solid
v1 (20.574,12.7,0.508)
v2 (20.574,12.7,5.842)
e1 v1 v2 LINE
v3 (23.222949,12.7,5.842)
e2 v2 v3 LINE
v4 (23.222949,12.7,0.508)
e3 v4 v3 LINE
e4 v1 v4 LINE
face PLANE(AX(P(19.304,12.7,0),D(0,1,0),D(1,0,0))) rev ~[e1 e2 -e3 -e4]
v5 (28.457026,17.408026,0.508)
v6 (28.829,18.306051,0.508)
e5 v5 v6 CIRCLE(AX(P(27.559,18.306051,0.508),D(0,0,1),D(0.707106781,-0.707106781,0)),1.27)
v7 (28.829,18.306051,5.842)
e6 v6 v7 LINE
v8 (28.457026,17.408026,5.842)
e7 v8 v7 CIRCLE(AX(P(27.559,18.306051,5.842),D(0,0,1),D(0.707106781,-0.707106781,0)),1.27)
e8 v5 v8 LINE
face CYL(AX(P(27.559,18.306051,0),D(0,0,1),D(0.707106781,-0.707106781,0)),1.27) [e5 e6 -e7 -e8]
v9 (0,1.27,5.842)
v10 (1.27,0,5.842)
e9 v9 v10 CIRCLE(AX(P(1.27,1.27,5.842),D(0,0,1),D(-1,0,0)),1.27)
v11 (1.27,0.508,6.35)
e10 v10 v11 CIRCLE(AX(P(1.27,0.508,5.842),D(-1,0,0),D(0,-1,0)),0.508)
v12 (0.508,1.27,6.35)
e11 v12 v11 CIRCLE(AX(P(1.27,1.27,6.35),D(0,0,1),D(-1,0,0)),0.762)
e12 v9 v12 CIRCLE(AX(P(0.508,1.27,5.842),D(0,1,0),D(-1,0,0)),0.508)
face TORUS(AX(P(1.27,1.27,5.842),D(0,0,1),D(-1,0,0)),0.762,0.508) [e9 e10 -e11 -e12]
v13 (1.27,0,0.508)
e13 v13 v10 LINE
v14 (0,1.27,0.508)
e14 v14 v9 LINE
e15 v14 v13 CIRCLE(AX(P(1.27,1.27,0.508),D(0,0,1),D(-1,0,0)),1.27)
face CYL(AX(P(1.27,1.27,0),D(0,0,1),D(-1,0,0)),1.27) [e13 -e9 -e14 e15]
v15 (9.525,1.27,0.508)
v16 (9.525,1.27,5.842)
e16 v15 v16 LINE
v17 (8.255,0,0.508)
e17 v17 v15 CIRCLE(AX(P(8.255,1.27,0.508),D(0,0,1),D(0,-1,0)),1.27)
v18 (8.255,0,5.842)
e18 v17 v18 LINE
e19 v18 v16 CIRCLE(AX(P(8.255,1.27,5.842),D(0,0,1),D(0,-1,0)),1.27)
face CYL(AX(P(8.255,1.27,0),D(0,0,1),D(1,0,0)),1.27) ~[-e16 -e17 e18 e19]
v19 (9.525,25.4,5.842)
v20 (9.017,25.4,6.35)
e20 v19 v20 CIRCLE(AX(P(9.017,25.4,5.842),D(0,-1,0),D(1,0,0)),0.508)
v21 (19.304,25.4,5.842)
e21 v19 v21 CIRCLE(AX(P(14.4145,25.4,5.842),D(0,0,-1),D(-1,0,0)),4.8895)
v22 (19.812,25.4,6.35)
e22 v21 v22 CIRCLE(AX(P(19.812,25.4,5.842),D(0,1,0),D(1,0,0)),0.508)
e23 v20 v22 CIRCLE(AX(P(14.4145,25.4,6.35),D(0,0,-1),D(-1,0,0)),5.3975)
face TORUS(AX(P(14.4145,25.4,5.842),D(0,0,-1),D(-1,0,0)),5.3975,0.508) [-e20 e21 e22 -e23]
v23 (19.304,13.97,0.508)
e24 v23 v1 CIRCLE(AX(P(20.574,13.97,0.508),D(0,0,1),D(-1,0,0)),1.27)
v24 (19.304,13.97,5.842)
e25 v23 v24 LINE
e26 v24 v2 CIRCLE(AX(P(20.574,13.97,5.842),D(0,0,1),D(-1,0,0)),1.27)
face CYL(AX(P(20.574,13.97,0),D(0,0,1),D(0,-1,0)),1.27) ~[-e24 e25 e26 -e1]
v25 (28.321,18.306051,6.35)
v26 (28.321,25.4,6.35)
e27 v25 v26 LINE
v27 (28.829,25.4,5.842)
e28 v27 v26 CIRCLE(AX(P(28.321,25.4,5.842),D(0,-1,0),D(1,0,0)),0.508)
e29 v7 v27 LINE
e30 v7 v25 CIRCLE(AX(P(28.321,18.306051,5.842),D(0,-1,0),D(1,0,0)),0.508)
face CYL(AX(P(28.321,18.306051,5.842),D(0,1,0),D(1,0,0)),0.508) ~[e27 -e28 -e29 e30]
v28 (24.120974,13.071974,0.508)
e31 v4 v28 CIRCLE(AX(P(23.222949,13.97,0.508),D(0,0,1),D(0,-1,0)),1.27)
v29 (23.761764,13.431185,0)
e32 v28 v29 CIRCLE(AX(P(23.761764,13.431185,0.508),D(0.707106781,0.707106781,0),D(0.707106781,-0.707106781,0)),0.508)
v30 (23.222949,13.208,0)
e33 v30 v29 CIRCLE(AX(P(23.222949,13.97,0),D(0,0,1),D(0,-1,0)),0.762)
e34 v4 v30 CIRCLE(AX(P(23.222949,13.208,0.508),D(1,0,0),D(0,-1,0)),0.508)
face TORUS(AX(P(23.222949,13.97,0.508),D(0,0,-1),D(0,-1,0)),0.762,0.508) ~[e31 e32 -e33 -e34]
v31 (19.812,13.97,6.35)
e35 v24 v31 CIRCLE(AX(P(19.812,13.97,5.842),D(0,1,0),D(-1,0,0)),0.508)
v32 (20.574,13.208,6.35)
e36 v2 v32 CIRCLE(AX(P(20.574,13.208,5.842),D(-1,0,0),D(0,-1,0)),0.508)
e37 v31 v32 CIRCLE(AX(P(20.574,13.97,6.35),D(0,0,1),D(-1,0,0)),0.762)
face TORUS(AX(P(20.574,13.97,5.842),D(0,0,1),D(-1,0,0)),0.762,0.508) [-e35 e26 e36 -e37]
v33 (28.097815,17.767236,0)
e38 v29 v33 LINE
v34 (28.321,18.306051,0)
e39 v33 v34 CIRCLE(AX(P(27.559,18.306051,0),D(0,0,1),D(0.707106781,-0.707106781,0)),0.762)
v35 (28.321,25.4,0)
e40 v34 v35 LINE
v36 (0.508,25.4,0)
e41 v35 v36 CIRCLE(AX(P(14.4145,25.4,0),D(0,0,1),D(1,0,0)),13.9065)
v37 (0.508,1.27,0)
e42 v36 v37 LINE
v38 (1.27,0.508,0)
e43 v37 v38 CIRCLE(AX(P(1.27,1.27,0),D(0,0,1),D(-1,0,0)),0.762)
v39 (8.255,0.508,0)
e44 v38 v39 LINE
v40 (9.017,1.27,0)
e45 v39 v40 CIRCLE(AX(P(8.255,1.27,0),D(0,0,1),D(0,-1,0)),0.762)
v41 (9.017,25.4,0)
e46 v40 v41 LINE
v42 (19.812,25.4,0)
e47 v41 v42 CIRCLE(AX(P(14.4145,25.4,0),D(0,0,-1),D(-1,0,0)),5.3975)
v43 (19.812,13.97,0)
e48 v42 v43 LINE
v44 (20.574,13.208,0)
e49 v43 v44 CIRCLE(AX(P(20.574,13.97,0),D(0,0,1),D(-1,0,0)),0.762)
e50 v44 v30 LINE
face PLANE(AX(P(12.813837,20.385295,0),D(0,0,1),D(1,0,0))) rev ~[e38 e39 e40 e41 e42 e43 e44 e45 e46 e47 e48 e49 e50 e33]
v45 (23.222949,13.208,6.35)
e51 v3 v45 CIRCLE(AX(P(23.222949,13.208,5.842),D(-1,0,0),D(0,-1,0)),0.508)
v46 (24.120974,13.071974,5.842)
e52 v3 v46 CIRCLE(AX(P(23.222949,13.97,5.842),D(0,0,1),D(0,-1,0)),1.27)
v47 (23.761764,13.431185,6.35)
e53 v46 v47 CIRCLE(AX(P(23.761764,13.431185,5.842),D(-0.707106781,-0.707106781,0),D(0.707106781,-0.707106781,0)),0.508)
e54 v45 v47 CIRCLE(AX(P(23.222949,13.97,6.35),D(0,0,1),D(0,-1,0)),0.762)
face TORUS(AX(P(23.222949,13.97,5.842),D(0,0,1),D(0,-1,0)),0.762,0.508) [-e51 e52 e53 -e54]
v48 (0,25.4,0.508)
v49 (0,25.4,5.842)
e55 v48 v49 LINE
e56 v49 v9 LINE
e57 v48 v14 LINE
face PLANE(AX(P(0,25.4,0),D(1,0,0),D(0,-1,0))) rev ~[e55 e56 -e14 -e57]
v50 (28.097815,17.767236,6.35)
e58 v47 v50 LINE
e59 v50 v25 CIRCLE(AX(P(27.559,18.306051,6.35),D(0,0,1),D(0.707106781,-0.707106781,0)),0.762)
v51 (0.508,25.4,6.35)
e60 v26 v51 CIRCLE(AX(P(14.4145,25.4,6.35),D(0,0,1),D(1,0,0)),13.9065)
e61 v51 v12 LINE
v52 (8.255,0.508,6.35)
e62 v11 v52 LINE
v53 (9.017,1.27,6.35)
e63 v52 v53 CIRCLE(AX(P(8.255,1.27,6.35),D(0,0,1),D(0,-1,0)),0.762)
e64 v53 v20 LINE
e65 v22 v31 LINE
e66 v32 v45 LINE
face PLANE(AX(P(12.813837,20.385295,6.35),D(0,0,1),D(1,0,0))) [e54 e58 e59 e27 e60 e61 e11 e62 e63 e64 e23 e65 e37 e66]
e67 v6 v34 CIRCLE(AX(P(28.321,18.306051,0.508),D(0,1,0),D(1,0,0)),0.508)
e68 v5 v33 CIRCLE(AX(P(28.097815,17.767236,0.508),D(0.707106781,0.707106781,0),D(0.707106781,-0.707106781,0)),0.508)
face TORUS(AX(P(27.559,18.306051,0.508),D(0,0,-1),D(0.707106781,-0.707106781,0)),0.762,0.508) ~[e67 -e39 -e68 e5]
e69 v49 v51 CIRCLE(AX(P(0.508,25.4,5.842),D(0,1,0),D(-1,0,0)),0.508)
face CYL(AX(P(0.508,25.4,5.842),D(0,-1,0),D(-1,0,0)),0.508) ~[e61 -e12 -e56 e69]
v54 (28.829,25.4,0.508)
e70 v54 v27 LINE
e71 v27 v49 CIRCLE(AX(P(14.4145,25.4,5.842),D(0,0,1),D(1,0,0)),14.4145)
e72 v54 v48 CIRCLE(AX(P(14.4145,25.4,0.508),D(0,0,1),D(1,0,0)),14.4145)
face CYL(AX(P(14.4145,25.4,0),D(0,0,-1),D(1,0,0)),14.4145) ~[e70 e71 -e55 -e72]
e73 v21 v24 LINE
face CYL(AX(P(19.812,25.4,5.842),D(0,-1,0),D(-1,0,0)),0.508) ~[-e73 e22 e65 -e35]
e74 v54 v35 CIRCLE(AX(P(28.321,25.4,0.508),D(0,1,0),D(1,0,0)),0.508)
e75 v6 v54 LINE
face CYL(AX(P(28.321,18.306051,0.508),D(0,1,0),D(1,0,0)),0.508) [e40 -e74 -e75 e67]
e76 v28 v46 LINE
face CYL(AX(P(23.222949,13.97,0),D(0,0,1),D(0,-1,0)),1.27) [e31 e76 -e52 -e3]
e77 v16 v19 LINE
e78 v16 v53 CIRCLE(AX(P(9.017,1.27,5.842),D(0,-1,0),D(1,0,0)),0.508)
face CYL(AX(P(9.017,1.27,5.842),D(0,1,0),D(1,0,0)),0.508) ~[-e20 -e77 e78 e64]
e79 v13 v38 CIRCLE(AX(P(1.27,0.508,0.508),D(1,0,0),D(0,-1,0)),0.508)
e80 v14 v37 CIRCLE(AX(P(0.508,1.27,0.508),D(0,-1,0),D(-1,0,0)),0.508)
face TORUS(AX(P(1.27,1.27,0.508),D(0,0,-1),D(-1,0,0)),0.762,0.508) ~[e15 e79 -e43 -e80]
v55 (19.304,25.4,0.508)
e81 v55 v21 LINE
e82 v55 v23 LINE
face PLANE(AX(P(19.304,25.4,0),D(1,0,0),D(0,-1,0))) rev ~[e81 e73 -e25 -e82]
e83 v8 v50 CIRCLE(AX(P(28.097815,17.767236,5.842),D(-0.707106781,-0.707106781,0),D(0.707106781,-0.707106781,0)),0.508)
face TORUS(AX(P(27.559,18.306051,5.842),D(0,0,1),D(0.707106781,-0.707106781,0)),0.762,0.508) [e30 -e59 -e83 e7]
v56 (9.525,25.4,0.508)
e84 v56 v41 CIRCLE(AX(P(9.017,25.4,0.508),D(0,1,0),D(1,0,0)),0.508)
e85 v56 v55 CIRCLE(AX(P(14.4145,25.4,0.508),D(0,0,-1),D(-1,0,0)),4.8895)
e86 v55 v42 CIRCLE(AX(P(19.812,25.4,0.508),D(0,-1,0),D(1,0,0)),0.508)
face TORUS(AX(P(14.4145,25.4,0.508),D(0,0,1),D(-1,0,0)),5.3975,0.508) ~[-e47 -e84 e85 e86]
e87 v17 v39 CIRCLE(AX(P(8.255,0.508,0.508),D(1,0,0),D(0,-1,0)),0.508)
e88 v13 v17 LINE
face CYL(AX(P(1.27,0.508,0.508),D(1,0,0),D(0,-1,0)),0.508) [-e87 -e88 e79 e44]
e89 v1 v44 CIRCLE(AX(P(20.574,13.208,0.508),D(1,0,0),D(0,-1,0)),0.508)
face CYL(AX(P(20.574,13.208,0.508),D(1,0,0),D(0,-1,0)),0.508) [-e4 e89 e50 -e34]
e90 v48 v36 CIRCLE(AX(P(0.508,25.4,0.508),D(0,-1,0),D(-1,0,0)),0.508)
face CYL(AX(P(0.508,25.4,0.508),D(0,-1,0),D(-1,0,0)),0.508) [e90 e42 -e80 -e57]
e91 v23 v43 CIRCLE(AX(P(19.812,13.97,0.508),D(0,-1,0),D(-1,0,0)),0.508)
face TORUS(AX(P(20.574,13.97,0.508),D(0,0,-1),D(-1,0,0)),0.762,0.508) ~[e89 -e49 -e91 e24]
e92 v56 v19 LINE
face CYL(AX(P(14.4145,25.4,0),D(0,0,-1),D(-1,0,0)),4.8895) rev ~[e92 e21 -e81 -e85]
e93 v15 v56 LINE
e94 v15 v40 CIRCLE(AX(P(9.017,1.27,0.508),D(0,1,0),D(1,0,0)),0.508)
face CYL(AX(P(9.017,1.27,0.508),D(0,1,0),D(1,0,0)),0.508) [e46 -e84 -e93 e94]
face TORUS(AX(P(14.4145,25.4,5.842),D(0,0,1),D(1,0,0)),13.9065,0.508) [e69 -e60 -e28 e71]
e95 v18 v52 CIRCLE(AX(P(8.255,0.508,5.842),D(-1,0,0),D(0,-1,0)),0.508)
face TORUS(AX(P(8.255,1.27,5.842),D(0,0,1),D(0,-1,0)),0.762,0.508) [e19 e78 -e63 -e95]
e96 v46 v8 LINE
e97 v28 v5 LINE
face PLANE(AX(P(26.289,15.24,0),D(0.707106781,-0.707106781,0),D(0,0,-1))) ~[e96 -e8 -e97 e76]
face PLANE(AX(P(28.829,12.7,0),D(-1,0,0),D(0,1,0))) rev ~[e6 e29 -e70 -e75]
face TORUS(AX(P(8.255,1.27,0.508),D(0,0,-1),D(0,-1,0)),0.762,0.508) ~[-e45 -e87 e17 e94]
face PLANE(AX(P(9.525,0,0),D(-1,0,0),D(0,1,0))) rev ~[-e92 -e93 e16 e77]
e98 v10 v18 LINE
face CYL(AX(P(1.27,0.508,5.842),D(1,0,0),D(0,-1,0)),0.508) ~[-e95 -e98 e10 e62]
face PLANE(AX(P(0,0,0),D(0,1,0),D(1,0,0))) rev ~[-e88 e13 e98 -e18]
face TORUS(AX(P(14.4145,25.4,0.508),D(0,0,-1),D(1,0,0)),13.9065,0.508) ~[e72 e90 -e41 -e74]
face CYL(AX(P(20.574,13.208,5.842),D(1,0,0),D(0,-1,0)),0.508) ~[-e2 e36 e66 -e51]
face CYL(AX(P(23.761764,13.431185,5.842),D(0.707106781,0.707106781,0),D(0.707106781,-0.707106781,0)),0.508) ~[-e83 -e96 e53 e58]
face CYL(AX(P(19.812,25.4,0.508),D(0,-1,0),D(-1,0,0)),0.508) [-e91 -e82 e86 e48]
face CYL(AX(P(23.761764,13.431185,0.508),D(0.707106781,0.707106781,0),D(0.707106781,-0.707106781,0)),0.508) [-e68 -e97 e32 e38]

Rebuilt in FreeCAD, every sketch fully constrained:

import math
import FreeCAD as App
import Part
import Sketcher
Q = App.Units.Quantity


def edges_at(feature, points):
    """Names of the edges that pass closest to the given points."""
    edges = feature.Shape.Edges
    near = lambda p: min(range(len(edges)), key=lambda i: edges[i].distToShape(Part.Vertex(*p))[0])
    return sorted({f"Edge{near(p) + 1}" for p in points})

doc = App.newDocument("Part")
params = doc.addObject("Spreadsheet::Sheet", "Params")
for row, (alias, value) in enumerate([
    ("sketch1_height", "1 in"),
    ("sketch1_height2", "0.5 in"),
    ("pad1_length", "0.25 in"),
    ("chamfer_size", "0.2 in"),
    ("fillet_radius", "0.05 in"),
    ("fillet2_radius", "0.02 in"),
], start=1):
    params.set(f"A{row}", alias)
    params.set(f"B{row}", "=" + value)
    params.setAlias(f"B{row}", alias)

body = doc.addObject("PartDesign::Body", "Body")

sketch1 = body.newObject("Sketcher::SketchObject", "Sketch")
sketch1.AttachmentSupport = (doc.getObject("XY_Plane"), [""])
sketch1.MapMode = "FlatFace"
sketch1.addGeometry([
    Part.LineSegment(App.Vector(0, 25.4, 0), App.Vector(0, 0, 0)),
    Part.LineSegment(App.Vector(0, 0, 0), App.Vector(9.5, 0, 0)),
    Part.LineSegment(App.Vector(9.5, 0, 0), App.Vector(9.5, 25.4, 0)),
    Part.ArcOfCircle(Part.Circle(App.Vector(14.4, 25.4, 0), App.Vector(0, 0, 1), 4.9), math.radians(0), math.radians(180)),
    Part.LineSegment(App.Vector(19.3, 25.4, 0), App.Vector(19.3, 12.7, 0)),
    Part.LineSegment(App.Vector(19.3, 12.7, 0), App.Vector(28.8, 12.7, 0)),
    Part.LineSegment(App.Vector(28.8, 12.7, 0), App.Vector(28.8, 25.4, 0)),
    Part.ArcOfCircle(Part.Circle(App.Vector(14.4, 25.4, 0), App.Vector(0, 0, 1), 14.4), math.radians(0), math.radians(180)),
], False)
sketch1.addConstraint([
    Sketcher.Constraint("Coincident", 0, 2, 1, 1),
    Sketcher.Constraint("Coincident", 1, 2, 2, 1),
    Sketcher.Constraint("Tangent", 2, 2, 3, 2),
    Sketcher.Constraint("Tangent", 3, 1, 4, 1),
    Sketcher.Constraint("Coincident", 4, 2, 5, 1),
    Sketcher.Constraint("Coincident", 5, 2, 6, 1),
    Sketcher.Constraint("Tangent", 6, 2, 7, 1),
    Sketcher.Constraint("Tangent", 7, 2, 0, 1),
    Sketcher.Constraint("Vertical", 0),
    Sketcher.Constraint("Horizontal", 1),
    Sketcher.Constraint("Vertical", 2),
    Sketcher.Constraint("Vertical", 4),
    Sketcher.Constraint("Horizontal", 5),
    Sketcher.Constraint("Vertical", 6),
    Sketcher.Constraint("Coincident", 0, 2, -1, 1),
    Sketcher.Constraint("Coincident", 7, 3, 3, 3),
    Sketcher.Constraint("DistanceY", 0, 2, 0, 1, Q("1 in")),
    Sketcher.Constraint("DistanceY", 4, 2, 4, 1, Q("0.5 in")),
    Sketcher.Constraint("Radius", 3, Q("0.1925 in")),
    Sketcher.Constraint("Radius", 7, Q("0.5675 in")),
])
sketch1.setExpression("Constraints[16]", "Params.sketch1_height")
sketch1.setExpression("Constraints[17]", "Params.sketch1_height2")
pad1 = body.newObject("PartDesign::Pad", "Pad")
pad1.Profile = sketch1
pad1.setExpression("Length", "Params.pad1_length")
doc.recompute()

chamfer = body.newObject("PartDesign::Chamfer", "Chamfer")
chamfer.Base = (pad1, edges_at(pad1, [(28.829, 12.7, 3.175)]))
chamfer.setExpression("Size", "Params.chamfer_size")
doc.recompute()

fillet = body.newObject("PartDesign::Fillet", "Fillet")
fillet.Base = (chamfer, edges_at(chamfer, [
    (23.749, 12.7, 3.175),
    (28.829, 17.78, 3.175),
    (19.304, 12.7, 3.175),
    (0, 0, 3.175),
    (9.525, 0, 3.175),
]))
fillet.setExpression("Radius", "Params.fillet_radius")
doc.recompute()

fillet2 = body.newObject("PartDesign::Fillet", "Fillet001")
fillet2.Base = (fillet, edges_at(fillet, [
    (21.898, 12.7, 6.35),
    (19.676, 13.072, 6.35),
    (23.709, 12.797, 6.35),
    (19.304, 19.685, 6.35),
    (26.289, 15.24, 6.35),
    (14.415, 30.29, 6.35),
    (28.732, 17.82, 6.35),
    (9.525, 13.335, 6.35),
    (28.829, 21.853, 6.35),
    (9.153, 0.372, 6.35),
    (14.415, 39.815, 6.35),
    (4.763, 0, 6.35),
    (0, 13.335, 6.35),
    (0.372, 0.372, 6.35),
    (21.898, 12.7, 0),
    (19.676, 13.072, 0),
    (23.709, 12.797, 0),
    (19.304, 19.685, 0),
    (26.289, 15.24, 0),
    (14.415, 30.29, 0),
    (28.732, 17.82, 0),
    (9.525, 13.335, 0),
    (28.829, 21.853, 0),
    (9.153, 0.372, 0),
    (14.415, 39.815, 0),
    (4.763, 0, 0),
    (0, 13.335, 0),
    (0.372, 0.372, 0),
]))
fillet2.setExpression("Radius", "Params.fillet2_radius")

doc.recompute()
